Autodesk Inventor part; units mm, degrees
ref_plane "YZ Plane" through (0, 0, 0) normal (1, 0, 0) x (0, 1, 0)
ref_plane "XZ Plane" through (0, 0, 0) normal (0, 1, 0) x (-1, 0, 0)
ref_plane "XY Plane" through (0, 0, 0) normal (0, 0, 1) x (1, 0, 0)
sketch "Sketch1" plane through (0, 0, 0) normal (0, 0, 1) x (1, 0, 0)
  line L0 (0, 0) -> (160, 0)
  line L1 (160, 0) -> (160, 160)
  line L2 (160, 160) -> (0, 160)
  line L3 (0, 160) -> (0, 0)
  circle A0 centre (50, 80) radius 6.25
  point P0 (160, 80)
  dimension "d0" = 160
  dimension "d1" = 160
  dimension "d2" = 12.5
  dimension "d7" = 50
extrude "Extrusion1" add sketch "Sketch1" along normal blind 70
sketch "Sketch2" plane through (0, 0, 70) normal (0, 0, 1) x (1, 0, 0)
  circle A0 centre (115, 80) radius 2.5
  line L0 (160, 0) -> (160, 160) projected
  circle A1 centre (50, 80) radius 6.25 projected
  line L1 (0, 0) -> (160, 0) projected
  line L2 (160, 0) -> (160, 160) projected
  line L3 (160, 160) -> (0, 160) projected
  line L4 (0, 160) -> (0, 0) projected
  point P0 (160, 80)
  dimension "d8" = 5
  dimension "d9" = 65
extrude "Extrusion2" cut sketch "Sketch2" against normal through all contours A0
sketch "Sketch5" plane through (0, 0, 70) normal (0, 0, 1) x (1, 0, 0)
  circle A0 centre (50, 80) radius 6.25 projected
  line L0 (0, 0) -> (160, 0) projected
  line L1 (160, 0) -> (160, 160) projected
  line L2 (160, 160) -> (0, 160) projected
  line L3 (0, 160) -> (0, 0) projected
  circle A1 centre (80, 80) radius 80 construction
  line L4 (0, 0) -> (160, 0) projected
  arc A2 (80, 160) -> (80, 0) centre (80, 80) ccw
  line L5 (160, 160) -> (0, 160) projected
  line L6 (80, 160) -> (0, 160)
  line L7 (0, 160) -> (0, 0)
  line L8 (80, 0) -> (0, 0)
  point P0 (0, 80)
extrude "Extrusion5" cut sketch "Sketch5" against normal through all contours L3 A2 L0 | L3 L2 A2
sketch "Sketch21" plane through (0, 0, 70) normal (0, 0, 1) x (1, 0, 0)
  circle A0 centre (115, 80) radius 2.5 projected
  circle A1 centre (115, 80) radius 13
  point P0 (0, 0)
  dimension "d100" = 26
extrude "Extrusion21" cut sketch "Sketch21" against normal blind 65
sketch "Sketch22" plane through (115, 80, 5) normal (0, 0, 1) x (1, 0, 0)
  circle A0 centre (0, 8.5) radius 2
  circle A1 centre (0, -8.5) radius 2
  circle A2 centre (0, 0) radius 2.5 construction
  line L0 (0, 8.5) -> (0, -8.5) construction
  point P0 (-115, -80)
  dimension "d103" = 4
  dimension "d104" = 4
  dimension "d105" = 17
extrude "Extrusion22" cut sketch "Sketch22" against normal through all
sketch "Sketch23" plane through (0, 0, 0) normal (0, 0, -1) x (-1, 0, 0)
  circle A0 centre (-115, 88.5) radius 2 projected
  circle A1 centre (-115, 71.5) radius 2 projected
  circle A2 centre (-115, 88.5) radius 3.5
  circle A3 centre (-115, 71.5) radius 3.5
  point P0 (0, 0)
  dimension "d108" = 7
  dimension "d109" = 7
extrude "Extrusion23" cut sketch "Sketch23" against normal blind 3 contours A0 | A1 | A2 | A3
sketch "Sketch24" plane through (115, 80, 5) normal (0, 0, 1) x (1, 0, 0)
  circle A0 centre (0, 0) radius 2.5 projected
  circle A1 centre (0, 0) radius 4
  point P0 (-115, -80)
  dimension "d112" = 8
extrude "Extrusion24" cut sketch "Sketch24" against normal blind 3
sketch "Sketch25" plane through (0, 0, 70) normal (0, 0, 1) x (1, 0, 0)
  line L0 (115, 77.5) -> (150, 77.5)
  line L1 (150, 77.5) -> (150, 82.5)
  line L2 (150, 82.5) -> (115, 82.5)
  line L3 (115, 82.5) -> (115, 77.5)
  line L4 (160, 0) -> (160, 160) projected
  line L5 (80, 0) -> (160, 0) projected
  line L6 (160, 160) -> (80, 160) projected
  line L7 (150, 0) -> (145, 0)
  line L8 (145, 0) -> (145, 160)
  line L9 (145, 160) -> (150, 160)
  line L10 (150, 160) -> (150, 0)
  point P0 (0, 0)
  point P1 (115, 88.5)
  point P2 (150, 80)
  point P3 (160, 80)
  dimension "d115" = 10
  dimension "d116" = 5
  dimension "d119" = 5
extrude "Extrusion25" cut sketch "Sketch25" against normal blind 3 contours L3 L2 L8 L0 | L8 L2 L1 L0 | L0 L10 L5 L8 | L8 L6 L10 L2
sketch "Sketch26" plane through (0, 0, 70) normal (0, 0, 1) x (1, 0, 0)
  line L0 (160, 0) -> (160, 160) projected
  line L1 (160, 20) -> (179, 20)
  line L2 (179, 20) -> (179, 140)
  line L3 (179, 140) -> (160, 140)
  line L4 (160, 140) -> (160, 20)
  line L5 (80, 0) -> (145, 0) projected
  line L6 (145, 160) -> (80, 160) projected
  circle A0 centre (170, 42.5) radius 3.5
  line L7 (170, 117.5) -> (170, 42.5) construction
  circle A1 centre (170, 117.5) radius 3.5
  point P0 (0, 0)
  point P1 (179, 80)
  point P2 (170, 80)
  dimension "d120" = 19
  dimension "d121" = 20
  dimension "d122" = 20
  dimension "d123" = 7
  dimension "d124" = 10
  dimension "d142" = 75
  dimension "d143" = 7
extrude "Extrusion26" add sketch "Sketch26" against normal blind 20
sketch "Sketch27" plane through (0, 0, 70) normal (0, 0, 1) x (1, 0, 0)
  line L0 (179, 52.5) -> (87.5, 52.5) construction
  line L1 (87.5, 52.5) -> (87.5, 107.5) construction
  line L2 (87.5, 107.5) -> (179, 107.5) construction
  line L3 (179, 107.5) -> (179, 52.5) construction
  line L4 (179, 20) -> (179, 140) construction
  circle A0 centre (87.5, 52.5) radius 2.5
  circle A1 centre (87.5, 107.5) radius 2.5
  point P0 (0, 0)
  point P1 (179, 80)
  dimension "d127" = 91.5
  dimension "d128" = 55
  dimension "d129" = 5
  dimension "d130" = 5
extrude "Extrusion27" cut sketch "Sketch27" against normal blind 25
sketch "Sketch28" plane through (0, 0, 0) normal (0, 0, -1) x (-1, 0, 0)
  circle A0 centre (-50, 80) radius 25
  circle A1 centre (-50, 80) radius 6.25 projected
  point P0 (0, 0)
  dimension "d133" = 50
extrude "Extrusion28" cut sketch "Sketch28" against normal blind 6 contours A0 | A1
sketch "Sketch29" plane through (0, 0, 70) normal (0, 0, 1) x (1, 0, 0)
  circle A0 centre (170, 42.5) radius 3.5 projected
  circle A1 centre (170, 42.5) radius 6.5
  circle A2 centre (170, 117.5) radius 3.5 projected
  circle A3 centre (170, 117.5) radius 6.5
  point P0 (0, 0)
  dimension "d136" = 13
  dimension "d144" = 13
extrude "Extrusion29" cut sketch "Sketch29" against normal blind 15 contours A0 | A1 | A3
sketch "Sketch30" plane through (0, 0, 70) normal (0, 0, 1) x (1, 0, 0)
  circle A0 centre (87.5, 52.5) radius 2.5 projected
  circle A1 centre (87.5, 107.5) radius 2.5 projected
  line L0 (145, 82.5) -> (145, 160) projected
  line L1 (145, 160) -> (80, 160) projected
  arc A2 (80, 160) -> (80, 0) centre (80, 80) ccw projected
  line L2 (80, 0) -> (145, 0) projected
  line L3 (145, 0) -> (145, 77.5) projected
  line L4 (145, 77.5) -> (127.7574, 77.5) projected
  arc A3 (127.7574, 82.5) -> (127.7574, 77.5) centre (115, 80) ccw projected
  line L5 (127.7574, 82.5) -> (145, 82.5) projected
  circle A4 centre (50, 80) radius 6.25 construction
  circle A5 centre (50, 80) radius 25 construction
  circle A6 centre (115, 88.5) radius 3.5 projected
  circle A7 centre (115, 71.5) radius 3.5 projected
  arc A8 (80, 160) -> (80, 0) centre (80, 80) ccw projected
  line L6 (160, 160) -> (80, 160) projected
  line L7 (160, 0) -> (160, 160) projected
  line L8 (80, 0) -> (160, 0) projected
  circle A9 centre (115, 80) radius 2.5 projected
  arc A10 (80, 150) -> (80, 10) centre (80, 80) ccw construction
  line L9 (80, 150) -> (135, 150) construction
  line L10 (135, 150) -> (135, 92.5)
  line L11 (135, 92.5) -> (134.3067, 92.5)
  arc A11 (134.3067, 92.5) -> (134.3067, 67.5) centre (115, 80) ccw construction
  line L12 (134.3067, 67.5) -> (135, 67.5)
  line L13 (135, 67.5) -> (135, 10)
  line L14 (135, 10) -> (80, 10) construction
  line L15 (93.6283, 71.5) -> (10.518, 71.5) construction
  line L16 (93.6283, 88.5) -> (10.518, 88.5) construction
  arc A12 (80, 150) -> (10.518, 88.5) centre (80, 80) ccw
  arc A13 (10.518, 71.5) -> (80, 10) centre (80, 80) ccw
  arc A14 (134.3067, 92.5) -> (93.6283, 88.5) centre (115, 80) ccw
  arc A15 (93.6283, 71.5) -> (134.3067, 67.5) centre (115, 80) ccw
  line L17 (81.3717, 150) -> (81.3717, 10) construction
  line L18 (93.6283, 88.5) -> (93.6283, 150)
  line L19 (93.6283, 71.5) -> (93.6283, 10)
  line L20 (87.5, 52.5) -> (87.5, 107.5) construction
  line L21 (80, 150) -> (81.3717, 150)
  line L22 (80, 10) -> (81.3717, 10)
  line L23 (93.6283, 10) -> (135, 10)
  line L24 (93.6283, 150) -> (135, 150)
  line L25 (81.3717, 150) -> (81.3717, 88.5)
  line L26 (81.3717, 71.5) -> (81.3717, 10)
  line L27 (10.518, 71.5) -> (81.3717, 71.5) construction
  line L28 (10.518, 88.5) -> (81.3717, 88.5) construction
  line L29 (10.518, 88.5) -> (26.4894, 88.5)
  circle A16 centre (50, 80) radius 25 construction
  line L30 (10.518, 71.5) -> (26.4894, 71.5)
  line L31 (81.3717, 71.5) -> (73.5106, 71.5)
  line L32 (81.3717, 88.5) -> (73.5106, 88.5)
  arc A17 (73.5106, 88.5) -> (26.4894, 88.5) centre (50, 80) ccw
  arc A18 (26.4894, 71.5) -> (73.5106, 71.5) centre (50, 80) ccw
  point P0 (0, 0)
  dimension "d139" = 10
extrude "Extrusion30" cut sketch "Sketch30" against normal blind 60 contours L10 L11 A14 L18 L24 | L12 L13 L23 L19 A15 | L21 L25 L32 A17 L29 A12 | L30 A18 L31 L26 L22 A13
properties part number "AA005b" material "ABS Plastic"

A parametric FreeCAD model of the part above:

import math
import FreeCAD as App
import Part
import Sketcher
Q = App.Units.Quantity


def add_polygon(sketch, points):
    """Adds a closed chain of lines whose ends are joined by coincident constraints."""
    first, n = sketch.GeometryCount, len(points)
    for a, b in zip(points, points[1:] + points[:1]):
        sketch.addGeometry(Part.LineSegment(App.Vector(*a, 0), App.Vector(*b, 0)), False)
    for i in range(n):
        sketch.addConstraint(Sketcher.Constraint("Coincident", first + i, 2, first + (i + 1) % n, 1))

doc = App.newDocument("Part")
body = doc.addObject("PartDesign::Body", "Body")

# Sketch on XY plane
sketch1 = body.newObject("Sketcher::SketchObject", "Sketch")
sketch1.AttachmentSupport = (doc.getObject("XY_Plane"), [""])
sketch1.MapMode = "FlatFace"
add_polygon(sketch1, [(0, 160), (0, 0), (160, 0), (160, 160)])  # lines 0-3
sketch1.addGeometry(Part.Circle(App.Vector(50, 80, 0), App.Vector(0, 0, 1), 6.25), False)  # 4
sketch1.addConstraint(Sketcher.Constraint("Vertical", 0))
sketch1.addConstraint(Sketcher.Constraint("Horizontal", 1))
sketch1.addConstraint(Sketcher.Constraint("Vertical", 2))
sketch1.addConstraint(Sketcher.Constraint("Horizontal", 3))
sketch1.addConstraint(Sketcher.Constraint("Coincident", 0, 2, -1, 1))
sketch1.addConstraint(Sketcher.Constraint("Equal", 3, 0))
sketch1.addConstraint(Sketcher.Constraint("Diameter", 4, Q("12.5 mm")))
sketch1.addConstraint(Sketcher.Constraint("DistanceX", 1, 1, 1, 2, Q("160 mm")))
sketch1.addConstraint(Sketcher.Constraint("DistanceX", -1, 1, 4, 3, Q("50 mm")))
sketch1.addConstraint(Sketcher.Constraint("DistanceY", -1, 1, 4, 3, Q("80 mm")))
pad1 = body.newObject("PartDesign::Pad", "Pad")
pad1.Profile = sketch1
pad1.Length = 70

# Sketch on XY plane
sketch2 = body.newObject("Sketcher::SketchObject", "Sketch001")
sketch2.AttachmentSupport = (doc.getObject("XY_Plane"), [""])
sketch2.MapMode = "FlatFace"
sketch2.AttachmentOffset = App.Placement(App.Vector(0, 0, 70), App.Rotation())
sketch2.addGeometry(Part.Circle(App.Vector(115, 80, 0), App.Vector(0, 0, 1), 2.5), False)
sketch2.addConstraint(Sketcher.Constraint("Diameter", 0, Q("5 mm")))
sketch2.addConstraint(Sketcher.Constraint("DistanceX", -1, 1, 0, 3, Q("115 mm")))
sketch2.addConstraint(Sketcher.Constraint("DistanceY", -1, 1, 0, 3, Q("80 mm")))
pocket1 = body.newObject("PartDesign::Pocket", "Pocket")
pocket1.Profile = sketch2
pocket1.Type = "ThroughAll"

# Sketch on XY plane
sketch3 = body.newObject("Sketcher::SketchObject", "Sketch002")
sketch3.AttachmentSupport = (doc.getObject("XY_Plane"), [""])
sketch3.MapMode = "FlatFace"
sketch3.AttachmentOffset = App.Placement(App.Vector(0, 0, 70), App.Rotation())
sketch3.addGeometry(Part.LineSegment(App.Vector(0, 80, 0), App.Vector(0, 0, 0)), False)
sketch3.addGeometry(Part.LineSegment(App.Vector(0, 0, 0), App.Vector(80, 0, 0)), False)
sketch3.addGeometry(Part.ArcOfCircle(Part.Circle(App.Vector(80, 80, 0), App.Vector(0, 0, 1), 80), math.radians(180), math.radians(270)), False)
sketch3.addGeometry(Part.LineSegment(App.Vector(0, 160, 0), App.Vector(0, 80, 0)), False)
sketch3.addGeometry(Part.ArcOfCircle(Part.Circle(App.Vector(80, 80, 0), App.Vector(0, 0, 1), 80), math.radians(90), math.radians(180)), False)
sketch3.addGeometry(Part.LineSegment(App.Vector(80, 160, 0), App.Vector(0, 160, 0)), False)
sketch3.addConstraint(Sketcher.Constraint("Coincident", 0, 2, 1, 1))
sketch3.addConstraint(Sketcher.Constraint("Tangent", 1, 2, 2, 2))
sketch3.addConstraint(Sketcher.Constraint("Tangent", 2, 1, 0, 1))
sketch3.addConstraint(Sketcher.Constraint("Tangent", 3, 2, 4, 2))
sketch3.addConstraint(Sketcher.Constraint("Tangent", 4, 1, 5, 1))
sketch3.addConstraint(Sketcher.Constraint("Coincident", 5, 2, 3, 1))
sketch3.addConstraint(Sketcher.Constraint("Vertical", 0))
sketch3.addConstraint(Sketcher.Constraint("Horizontal", 1))
sketch3.addConstraint(Sketcher.Constraint("Vertical", 3))
sketch3.addConstraint(Sketcher.Constraint("Horizontal", 5))
sketch3.addConstraint(Sketcher.Constraint("Coincident", 0, 2, -1, 1))
sketch3.addConstraint(Sketcher.Constraint("Coincident", 4, 3, 2, 3))
sketch3.addConstraint(Sketcher.Constraint("Equal", 2, 4))
sketch3.addConstraint(Sketcher.Constraint("Radius", 2, Q("80 mm")))
pocket2 = body.newObject("PartDesign::Pocket", "Pocket001")
pocket2.Profile = sketch3
pocket2.Type = "ThroughAll"

# Sketch on XY plane
sketch4 = body.newObject("Sketcher::SketchObject", "Sketch003")
sketch4.AttachmentSupport = (doc.getObject("XY_Plane"), [""])
sketch4.MapMode = "FlatFace"
sketch4.AttachmentOffset = App.Placement(App.Vector(0, 0, 70), App.Rotation())
sketch4.addGeometry(Part.Circle(App.Vector(115, 80, 0), App.Vector(0, 0, 1), 13), False)
sketch4.addGeometry(Part.Circle(App.Vector(115, 80, 0), App.Vector(0, 0, 1), 2.5), False)
sketch4.addConstraint(Sketcher.Constraint("Coincident", 1, 3, 0, 3))
sketch4.addConstraint(Sketcher.Constraint("Diameter", 0, Q("26 mm")))
sketch4.addConstraint(Sketcher.Constraint("Diameter", 1, Q("5 mm")))
sketch4.addConstraint(Sketcher.Constraint("DistanceX", -1, 1, 0, 3, Q("115 mm")))
sketch4.addConstraint(Sketcher.Constraint("DistanceY", -1, 1, 0, 3, Q("80 mm")))
pocket3 = body.newObject("PartDesign::Pocket", "Pocket002")
pocket3.Profile = sketch4
pocket3.Length = 65

# Sketch on XY plane
sketch5 = body.newObject("Sketcher::SketchObject", "Sketch004")
sketch5.AttachmentSupport = (doc.getObject("XY_Plane"), [""])
sketch5.MapMode = "FlatFace"
sketch5.AttachmentOffset = App.Placement(App.Vector(0, 0, 5), App.Rotation())
sketch5.addGeometry(Part.Circle(App.Vector(115, 88.5, 0), App.Vector(0, 0, 1), 2), False)
sketch5.addGeometry(Part.Circle(App.Vector(115, 71.5, 0), App.Vector(0, 0, 1), 2), False)
sketch5.addConstraint(Sketcher.Constraint("Equal", 0, 1))
sketch5.addConstraint(Sketcher.Constraint("Vertical", 0, 3, 1, 3))
sketch5.addConstraint(Sketcher.Constraint("Diameter", 0, Q("4 mm")))
sketch5.addConstraint(Sketcher.Constraint("DistanceY", 1, 3, 0, 3, Q("17 mm")))
sketch5.addConstraint(Sketcher.Constraint("DistanceX", -1, 1, 0, 3, Q("115 mm")))
sketch5.addConstraint(Sketcher.Constraint("DistanceY", -1, 1, 0, 3, Q("88.5 mm")))
pocket4 = body.newObject("PartDesign::Pocket", "Pocket003")
pocket4.Profile = sketch5
pocket4.Type = "ThroughAll"

# Sketch on XY plane
sketch6 = body.newObject("Sketcher::SketchObject", "Sketch005")
sketch6.AttachmentSupport = (doc.getObject("XY_Plane"), [""])
sketch6.MapMode = "FlatFace"
sketch6.addGeometry(Part.Circle(App.Vector(115, 88.5, 0), App.Vector(0, 0, 1), 3.5), False)
sketch6.addGeometry(Part.Circle(App.Vector(115, 71.5, 0), App.Vector(0, 0, 1), 3.5), False)
sketch6.addConstraint(Sketcher.Constraint("Equal", 0, 1))
sketch6.addConstraint(Sketcher.Constraint("Vertical", 0, 3, 1, 3))
sketch6.addConstraint(Sketcher.Constraint("Diameter", 0, Q("7 mm")))
sketch6.addConstraint(Sketcher.Constraint("DistanceX", -1, 1, 0, 3, Q("115 mm")))
sketch6.addConstraint(Sketcher.Constraint("DistanceY", 1, 3, 0, 3, Q("17 mm")))
sketch6.addConstraint(Sketcher.Constraint("DistanceY", -1, 1, 0, 3, Q("88.5 mm")))
pocket5 = body.newObject("PartDesign::Pocket", "Pocket004")
pocket5.Profile = sketch6
pocket5.Length = 3
pocket5.Reversed = True

# Sketch on XY plane
sketch7 = body.newObject("Sketcher::SketchObject", "Sketch006")
sketch7.AttachmentSupport = (doc.getObject("XY_Plane"), [""])
sketch7.MapMode = "FlatFace"
sketch7.AttachmentOffset = App.Placement(App.Vector(0, 0, 5), App.Rotation())
sketch7.addGeometry(Part.Circle(App.Vector(115, 80, 0), App.Vector(0, 0, 1), 4), False)
sketch7.addGeometry(Part.Circle(App.Vector(115, 80, 0), App.Vector(0, 0, 1), 2.5), False)
sketch7.addConstraint(Sketcher.Constraint("Coincident", 1, 3, 0, 3))
sketch7.addConstraint(Sketcher.Constraint("Diameter", 0, Q("8 mm")))
sketch7.addConstraint(Sketcher.Constraint("Diameter", 1, Q("5 mm")))
sketch7.addConstraint(Sketcher.Constraint("DistanceX", -1, 1, 0, 3, Q("115 mm")))
sketch7.addConstraint(Sketcher.Constraint("DistanceY", -1, 1, 0, 3, Q("80 mm")))
pocket6 = body.newObject("PartDesign::Pocket", "Pocket005")
pocket6.Profile = sketch7
pocket6.Length = 3

# Sketch on XY plane
sketch8 = body.newObject("Sketcher::SketchObject", "Sketch007")
sketch8.AttachmentSupport = (doc.getObject("XY_Plane"), [""])
sketch8.MapMode = "FlatFace"
sketch8.AttachmentOffset = App.Placement(App.Vector(0, 0, 70), App.Rotation())
add_polygon(sketch8, [(115, 82.5), (115, 77.5), (145, 77.5), (145, 0), (150, 0), (150, 160), (145, 160), (145, 82.5)])  # lines 0-7
sketch8.addConstraint(Sketcher.Constraint("Vertical", 0))
sketch8.addConstraint(Sketcher.Constraint("Horizontal", 1))
sketch8.addConstraint(Sketcher.Constraint("Vertical", 2))
sketch8.addConstraint(Sketcher.Constraint("Horizontal", 3))
sketch8.addConstraint(Sketcher.Constraint("Vertical", 4))
sketch8.addConstraint(Sketcher.Constraint("Horizontal", 5))
sketch8.addConstraint(Sketcher.Constraint("Vertical", 6))
sketch8.addConstraint(Sketcher.Constraint("Horizontal", 7))
sketch8.addConstraint(Sketcher.Constraint("PointOnObject", 2, 2, -1))
sketch8.addConstraint(Sketcher.Constraint("Vertical", 2, 2, 5, 2))
sketch8.addConstraint(Sketcher.Constraint("Equal", 5, 0))
sketch8.addConstraint(Sketcher.Constraint("Equal", 2, 6))
sketch8.addConstraint(Sketcher.Constraint("DistanceX", 3, 1, 3, 2, Q("5 mm")))
sketch8.addConstraint(Sketcher.Constraint("DistanceX", 1, 1, 1, 2, Q("30 mm")))
sketch8.addConstraint(Sketcher.Constraint("DistanceY", 4, 1, 4, 2, Q("160 mm")))
sketch8.addConstraint(Sketcher.Constraint("DistanceX", -1, 1, 0, 2, Q("115 mm")))
pocket7 = body.newObject("PartDesign::Pocket", "Pocket006")
pocket7.Profile = sketch8
pocket7.Length = 3

# Sketch on XY plane
sketch9 = body.newObject("Sketcher::SketchObject", "Sketch008")
sketch9.AttachmentSupport = (doc.getObject("XY_Plane"), [""])
sketch9.MapMode = "FlatFace"
sketch9.AttachmentOffset = App.Placement(App.Vector(0, 0, 70), App.Rotation())
add_polygon(sketch9, [(160, 140), (160, 20), (179, 20), (179, 140)])  # lines 0-3
sketch9.addGeometry(Part.Circle(App.Vector(170, 42.5, 0), App.Vector(0, 0, 1), 3.5), False)  # 4
sketch9.addGeometry(Part.Circle(App.Vector(170, 117.5, 0), App.Vector(0, 0, 1), 3.5), False)  # 5
sketch9.addConstraint(Sketcher.Constraint("Vertical", 0))
sketch9.addConstraint(Sketcher.Constraint("Horizontal", 1))
sketch9.addConstraint(Sketcher.Constraint("Vertical", 2))
sketch9.addConstraint(Sketcher.Constraint("Horizontal", 3))
sketch9.addConstraint(Sketcher.Constraint("Equal", 4, 5))
sketch9.addConstraint(Sketcher.Constraint("Vertical", 4, 3, 5, 3))
sketch9.addConstraint(Sketcher.Constraint("Diameter", 4, Q("7 mm")))
sketch9.addConstraint(Sketcher.Constraint("DistanceX", 1, 1, 1, 2, Q("19 mm")))
sketch9.addConstraint(Sketcher.Constraint("DistanceY", -1, 1, 0, 2, Q("20 mm")))
sketch9.addConstraint(Sketcher.Constraint("DistanceY", 4, 3, 5, 3, Q("75 mm")))
sketch9.addConstraint(Sketcher.Constraint("DistanceX", 0, 2, 4, 3, Q("10 mm")))
sketch9.addConstraint(Sketcher.Constraint("DistanceY", 0, 2, 0, 1, Q("120 mm")))
sketch9.addConstraint(Sketcher.Constraint("DistanceX", -1, 1, 4, 3, Q("170 mm")))
sketch9.addConstraint(Sketcher.Constraint("DistanceY", -1, 1, 4, 3, Q("42.5 mm")))
pad2 = body.newObject("PartDesign::Pad", "Pad001")
pad2.Profile = sketch9
pad2.Length = 20
pad2.Reversed = True

# Sketch on XY plane
sketch10 = body.newObject("Sketcher::SketchObject", "Sketch009")
sketch10.AttachmentSupport = (doc.getObject("XY_Plane"), [""])
sketch10.MapMode = "FlatFace"
sketch10.AttachmentOffset = App.Placement(App.Vector(0, 0, 70), App.Rotation())
sketch10.addGeometry(Part.Circle(App.Vector(87.5, 52.5, 0), App.Vector(0, 0, 1), 2.5), False)
sketch10.addGeometry(Part.Circle(App.Vector(87.5, 107.5, 0), App.Vector(0, 0, 1), 2.5), False)
sketch10.addConstraint(Sketcher.Constraint("Equal", 0, 1))
sketch10.addConstraint(Sketcher.Constraint("Vertical", 0, 3, 1, 3))
sketch10.addConstraint(Sketcher.Constraint("Diameter", 0, Q("5 mm")))
sketch10.addConstraint(Sketcher.Constraint("DistanceY", 0, 3, 1, 3, Q("55 mm")))
sketch10.addConstraint(Sketcher.Constraint("DistanceX", -1, 1, 0, 3, Q("87.5 mm")))
sketch10.addConstraint(Sketcher.Constraint("DistanceY", -1, 1, 0, 3, Q("52.5 mm")))
pocket8 = body.newObject("PartDesign::Pocket", "Pocket007")
pocket8.Profile = sketch10
pocket8.Length = 25

# Sketch on XY plane
sketch11 = body.newObject("Sketcher::SketchObject", "Sketch010")
sketch11.AttachmentSupport = (doc.getObject("XY_Plane"), [""])
sketch11.MapMode = "FlatFace"
sketch11.addGeometry(Part.Circle(App.Vector(50, 80, 0), App.Vector(0, 0, 1), 25), False)
sketch11.addConstraint(Sketcher.Constraint("Diameter", 0, Q("50 mm")))
sketch11.addConstraint(Sketcher.Constraint("DistanceX", -1, 1, 0, 3, Q("50 mm")))
sketch11.addConstraint(Sketcher.Constraint("DistanceY", -1, 1, 0, 3, Q("80 mm")))
pocket9 = body.newObject("PartDesign::Pocket", "Pocket008")
pocket9.Profile = sketch11
pocket9.Length = 6
pocket9.Reversed = True

# Sketch on XY plane
sketch12 = body.newObject("Sketcher::SketchObject", "Sketch011")
sketch12.AttachmentSupport = (doc.getObject("XY_Plane"), [""])
sketch12.MapMode = "FlatFace"
sketch12.AttachmentOffset = App.Placement(App.Vector(0, 0, 70), App.Rotation())
sketch12.addGeometry(Part.Circle(App.Vector(170, 42.5, 0), App.Vector(0, 0, 1), 6.5), False)
sketch12.addGeometry(Part.Circle(App.Vector(170, 117.5, 0), App.Vector(0, 0, 1), 6.5), False)
sketch12.addGeometry(Part.Circle(App.Vector(170, 117.5, 0), App.Vector(0, 0, 1), 3.5), False)
sketch12.addConstraint(Sketcher.Constraint("Coincident", 2, 3, 1, 3))
sketch12.addConstraint(Sketcher.Constraint("Equal", 0, 1))
sketch12.addConstraint(Sketcher.Constraint("Vertical", 0, 3, 1, 3))
sketch12.addConstraint(Sketcher.Constraint("Diameter", 0, Q("13 mm")))
sketch12.addConstraint(Sketcher.Constraint("Diameter", 2, Q("7 mm")))
sketch12.addConstraint(Sketcher.Constraint("DistanceX", -1, 1, 0, 3, Q("170 mm")))
sketch12.addConstraint(Sketcher.Constraint("DistanceY", 0, 3, 1, 3, Q("75 mm")))
sketch12.addConstraint(Sketcher.Constraint("DistanceY", -1, 1, 0, 3, Q("42.5 mm")))
pocket10 = body.newObject("PartDesign::Pocket", "Pocket009")
pocket10.Profile = sketch12
pocket10.Length = 15

# Sketch on XY plane
sketch13 = body.newObject("Sketcher::SketchObject", "Sketch012")
sketch13.AttachmentSupport = (doc.getObject("XY_Plane"), [""])
sketch13.MapMode = "FlatFace"
sketch13.AttachmentOffset = App.Placement(App.Vector(0, 0, 70), App.Rotation())
sketch13.addGeometry(Part.LineSegment(App.Vector(135, 92.5, 0), App.Vector(135, 150, 0)), False)
sketch13.addGeometry(Part.LineSegment(App.Vector(135, 150, 0), App.Vector(93.6283, 150, 0)), False)
sketch13.addGeometry(Part.LineSegment(App.Vector(93.6283, 150, 0), App.Vector(93.6283, 88.5, 0)), False)
sketch13.addGeometry(Part.ArcOfCircle(Part.Circle(App.Vector(115, 80, 0), App.Vector(0, 0, 1), 22.99999), math.radians(32.920781), math.radians(158.311185)), False)
sketch13.addGeometry(Part.LineSegment(App.Vector(134.3067, 92.5, 0), App.Vector(135, 92.5, 0)), False)
sketch13.addGeometry(Part.LineSegment(App.Vector(135, 67.5, 0), App.Vector(134.3067, 67.5, 0)), False)
sketch13.addGeometry(Part.ArcOfCircle(Part.Circle(App.Vector(115, 80, 0), App.Vector(0, 0, 1), 22.999971), math.radians(-158.311185), math.radians(-32.920781)), False)
sketch13.addGeometry(Part.LineSegment(App.Vector(93.6283, 71.5, 0), App.Vector(93.6283, 10, 0)), False)
sketch13.addGeometry(Part.LineSegment(App.Vector(93.6283, 10, 0), App.Vector(135, 10, 0)), False)
sketch13.addGeometry(Part.LineSegment(App.Vector(135, 10, 0), App.Vector(135, 67.5, 0)), False)
sketch13.addGeometry(Part.LineSegment(App.Vector(81.3717, 150, 0), App.Vector(80, 150, 0)), False)
sketch13.addGeometry(Part.ArcOfCircle(Part.Circle(App.Vector(80, 80, 0), App.Vector(0, 0, 1), 69.999988), math.radians(90), math.radians(173.025442)), False)
sketch13.addGeometry(Part.LineSegment(App.Vector(10.518, 88.5, 0), App.Vector(26.4894, 88.5, 0)), False)
sketch13.addGeometry(Part.ArcOfCircle(Part.Circle(App.Vector(50, 80, 0), App.Vector(0, 0, 1), 24.999966), math.radians(19.876902), math.radians(160.123098)), False)
sketch13.addGeometry(Part.LineSegment(App.Vector(73.5106, 88.5, 0), App.Vector(81.3717, 88.5, 0)), False)
sketch13.addGeometry(Part.LineSegment(App.Vector(81.3717, 88.5, 0), App.Vector(81.3717, 150, 0)), False)
sketch13.addGeometry(Part.LineSegment(App.Vector(26.4894, 71.5, 0), App.Vector(10.518, 71.5, 0)), False)
sketch13.addGeometry(Part.ArcOfCircle(Part.Circle(App.Vector(80, 80, 0), App.Vector(0, 0, 1), 70), math.radians(-173.025442), math.radians(-90)), False)
sketch13.addGeometry(Part.LineSegment(App.Vector(80, 10, 0), App.Vector(81.3717, 10, 0)), False)
sketch13.addGeometry(Part.LineSegment(App.Vector(81.3717, 10, 0), App.Vector(81.3717, 71.5, 0)), False)
sketch13.addGeometry(Part.LineSegment(App.Vector(81.3717, 71.5, 0), App.Vector(73.5106, 71.5, 0)), False)
sketch13.addGeometry(Part.ArcOfCircle(Part.Circle(App.Vector(50, 80, 0), App.Vector(0, 0, 1), 24.999966), math.radians(-160.123098), math.radians(-19.876902)), False)
sketch13.addConstraint(Sketcher.Constraint("Coincident", 0, 2, 1, 1))
sketch13.addConstraint(Sketcher.Constraint("Coincident", 1, 2, 2, 1))
sketch13.addConstraint(Sketcher.Constraint("Coincident", 2, 2, 3, 2))
sketch13.addConstraint(Sketcher.Constraint("Coincident", 3, 1, 4, 1))
sketch13.addConstraint(Sketcher.Constraint("Coincident", 4, 2, 0, 1))
sketch13.addConstraint(Sketcher.Constraint("Coincident", 5, 2, 6, 2))
sketch13.addConstraint(Sketcher.Constraint("Coincident", 6, 1, 7, 1))
sketch13.addConstraint(Sketcher.Constraint("Coincident", 7, 2, 8, 1))
sketch13.addConstraint(Sketcher.Constraint("Coincident", 8, 2, 9, 1))
sketch13.addConstraint(Sketcher.Constraint("Coincident", 9, 2, 5, 1))
sketch13.addConstraint(Sketcher.Constraint("Tangent", 10, 2, 11, 1))
sketch13.addConstraint(Sketcher.Constraint("Coincident", 11, 2, 12, 1))
sketch13.addConstraint(Sketcher.Constraint("Coincident", 12, 2, 13, 2))
sketch13.addConstraint(Sketcher.Constraint("Coincident", 13, 1, 14, 1))
sketch13.addConstraint(Sketcher.Constraint("Coincident", 14, 2, 15, 1))
sketch13.addConstraint(Sketcher.Constraint("Coincident", 15, 2, 10, 1))
sketch13.addConstraint(Sketcher.Constraint("Coincident", 16, 2, 17, 1))
sketch13.addConstraint(Sketcher.Constraint("Tangent", 17, 2, 18, 1))
sketch13.addConstraint(Sketcher.Constraint("Coincident", 18, 2, 19, 1))
sketch13.addConstraint(Sketcher.Constraint("Coincident", 19, 2, 20, 1))
sketch13.addConstraint(Sketcher.Constraint("Coincident", 20, 2, 21, 2))
sketch13.addConstraint(Sketcher.Constraint("Coincident", 21, 1, 16, 1))
sketch13.addConstraint(Sketcher.Constraint("Vertical", 0))
sketch13.addConstraint(Sketcher.Constraint("Horizontal", 1))
sketch13.addConstraint(Sketcher.Constraint("Vertical", 2))
sketch13.addConstraint(Sketcher.Constraint("Horizontal", 4))
sketch13.addConstraint(Sketcher.Constraint("Horizontal", 5))
sketch13.addConstraint(Sketcher.Constraint("Vertical", 7))
sketch13.addConstraint(Sketcher.Constraint("Horizontal", 8))
sketch13.addConstraint(Sketcher.Constraint("Vertical", 9))
sketch13.addConstraint(Sketcher.Constraint("Horizontal", 10))
sketch13.addConstraint(Sketcher.Constraint("Horizontal", 12))
sketch13.addConstraint(Sketcher.Constraint("Horizontal", 14))
sketch13.addConstraint(Sketcher.Constraint("Vertical", 15))
sketch13.addConstraint(Sketcher.Constraint("Horizontal", 16))
sketch13.addConstraint(Sketcher.Constraint("Horizontal", 18))
sketch13.addConstraint(Sketcher.Constraint("Vertical", 19))
sketch13.addConstraint(Sketcher.Constraint("Horizontal", 20))
sketch13.addConstraint(Sketcher.Constraint("Coincident", 6, 3, 3, 3))
sketch13.addConstraint(Sketcher.Constraint("Coincident", 17, 3, 11, 3))
sketch13.addConstraint(Sketcher.Constraint("Coincident", 21, 3, 13, 3))
sketch13.addConstraint(Sketcher.Constraint("Equal", 3, 6))
sketch13.addConstraint(Sketcher.Constraint("Equal", 11, 17))
sketch13.addConstraint(Sketcher.Constraint("Equal", 13, 21))
sketch13.addConstraint(Sketcher.Constraint("Horizontal", 6, 3, 11, 3))
sketch13.addConstraint(Sketcher.Constraint("Horizontal", 11, 3, 13, 3))
sketch13.addConstraint(Sketcher.Constraint("Horizontal", 1, 2, 10, 2))
sketch13.addConstraint(Sketcher.Constraint("Horizontal", 2, 2, 11, 2))
sketch13.addConstraint(Sketcher.Constraint("Horizontal", 12, 2, 13, 1))
sketch13.addConstraint(Sketcher.Constraint("Horizontal", 6, 1, 16, 2))
sketch13.addConstraint(Sketcher.Constraint("Horizontal", 8, 2, 17, 2))
sketch13.addConstraint(Sketcher.Constraint("Horizontal", 16, 2, 19, 2))
sketch13.addConstraint(Sketcher.Constraint("Vertical", 3, 1, 5, 2))
sketch13.addConstraint(Sketcher.Constraint("Vertical", 2, 2, 6, 1))
sketch13.addConstraint(Sketcher.Constraint("Vertical", 4, 2, 8, 2))
sketch13.addConstraint(Sketcher.Constraint("Vertical", 15, 2, 18, 2))
sketch13.addConstraint(Sketcher.Constraint("DistanceY", -1, 1, 7, 2, Q("10 mm")))
sketch13.addConstraint(Sketcher.Constraint("Radius", 3, Q("23 mm")))
sketch13.addConstraint(Sketcher.Constraint("Radius", 11, Q("70 mm")))
sketch13.addConstraint(Sketcher.Constraint("Radius", 13, Q("25 mm")))
sketch13.addConstraint(Sketcher.Constraint("DistanceY", 0, 1, 0, 2, Q("57.5 mm")))
sketch13.addConstraint(Sketcher.Constraint("DistanceY", 2, 2, 2, 1, Q("61.5 mm")))
sketch13.addConstraint(Sketcher.Constraint("DistanceX", -1, 1, 3, 3, Q("115 mm")))
sketch13.addConstraint(Sketcher.Constraint("DistanceX", -1, 1, 11, 3, Q("80 mm")))
sketch13.addConstraint(Sketcher.Constraint("DistanceX", -1, 1, 13, 3, Q("50 mm")))
sketch13.addConstraint(Sketcher.Constraint("DistanceX", -1, 1, 0, 2, Q("135 mm")))
sketch13.addConstraint(Sketcher.Constraint("DistanceX", 14, 1, 14, 2, Q("7.861 mm")))
pocket11 = body.newObject("PartDesign::Pocket", "Pocket010")
pocket11.Profile = sketch13
pocket11.Length = 60

doc.recompute()
